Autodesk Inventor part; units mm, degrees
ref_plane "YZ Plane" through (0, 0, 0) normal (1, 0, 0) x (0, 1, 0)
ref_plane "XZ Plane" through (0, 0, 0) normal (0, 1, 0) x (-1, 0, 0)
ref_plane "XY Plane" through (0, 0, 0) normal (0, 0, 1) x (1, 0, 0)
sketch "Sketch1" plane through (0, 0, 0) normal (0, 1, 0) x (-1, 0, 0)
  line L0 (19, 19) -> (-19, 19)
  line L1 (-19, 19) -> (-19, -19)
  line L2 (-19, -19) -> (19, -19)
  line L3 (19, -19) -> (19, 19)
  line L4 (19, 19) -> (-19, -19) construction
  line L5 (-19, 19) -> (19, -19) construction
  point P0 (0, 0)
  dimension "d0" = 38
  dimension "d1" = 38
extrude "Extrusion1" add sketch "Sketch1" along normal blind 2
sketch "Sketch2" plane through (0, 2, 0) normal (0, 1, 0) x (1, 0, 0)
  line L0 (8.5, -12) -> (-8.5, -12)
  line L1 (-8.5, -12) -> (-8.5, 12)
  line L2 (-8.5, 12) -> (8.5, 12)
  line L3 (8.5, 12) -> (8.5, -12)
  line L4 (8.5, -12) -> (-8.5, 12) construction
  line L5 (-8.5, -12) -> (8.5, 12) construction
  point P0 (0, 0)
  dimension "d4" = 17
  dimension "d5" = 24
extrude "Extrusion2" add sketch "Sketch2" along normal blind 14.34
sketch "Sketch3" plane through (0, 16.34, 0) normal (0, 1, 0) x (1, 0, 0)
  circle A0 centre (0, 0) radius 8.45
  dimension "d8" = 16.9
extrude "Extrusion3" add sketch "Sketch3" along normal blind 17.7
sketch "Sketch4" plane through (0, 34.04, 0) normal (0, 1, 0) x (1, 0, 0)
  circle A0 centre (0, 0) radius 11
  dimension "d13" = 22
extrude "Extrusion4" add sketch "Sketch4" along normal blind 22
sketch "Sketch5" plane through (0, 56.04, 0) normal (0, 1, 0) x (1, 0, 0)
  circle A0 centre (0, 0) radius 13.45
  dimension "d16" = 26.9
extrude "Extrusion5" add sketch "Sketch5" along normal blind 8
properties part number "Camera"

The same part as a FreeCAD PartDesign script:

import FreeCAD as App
import Part
import Sketcher

V = App.Vector

doc = App.newDocument("Part")
body = doc.addObject("PartDesign::Body", "Body")

# Sketch on XZ plane
sketch1 = doc.addObject("Sketcher::SketchObject", "Sketch")
body.addObject(sketch1)
sketch1.AttachmentSupport = (doc.XZ_Plane, [""])
sketch1.MapMode = "FlatFace"
sketch1.addGeometry([
    Part.LineSegment(V(-19, -19, 0), V(-19, 19, 0)),
    Part.LineSegment(V(-19, 19, 0), V(19, 19, 0)),
    Part.LineSegment(V(19, 19, 0), V(19, -19, 0)),
    Part.LineSegment(V(19, -19, 0), V(-19, -19, 0)),
], False)
sketch1.addConstraint([
    Sketcher.Constraint("Coincident", 0, 2, 1, 1),
    Sketcher.Constraint("Coincident", 1, 2, 2, 1),
    Sketcher.Constraint("Coincident", 2, 2, 3, 1),
    Sketcher.Constraint("Coincident", 3, 2, 0, 1),
    Sketcher.Constraint("Vertical", 0),
    Sketcher.Constraint("Horizontal", 1),
    Sketcher.Constraint("Vertical", 2),
    Sketcher.Constraint("Horizontal", 3),
    Sketcher.Constraint("Symmetric", 0, 2, 2, 2, -1, 1),
    Sketcher.Constraint("Equal", 3, 0),
    Sketcher.Constraint("DistanceX", 1, 1, 1, 2, 38.0),
])
pad1 = doc.addObject("PartDesign::Pad", "Pad")
body.addObject(pad1)
pad1.Profile = sketch1
pad1.Length = 2
pad1.Reversed = True

# Sketch on XZ plane
sketch2 = doc.addObject("Sketcher::SketchObject", "Sketch001")
body.addObject(sketch2)
sketch2.AttachmentSupport = (doc.XZ_Plane, [""])
sketch2.MapMode = "FlatFace"
sketch2.AttachmentOffset = App.Placement(V(0, 0, -2), App.Rotation())
sketch2.addGeometry([
    Part.LineSegment(V(-8, 12, 0), V(8, 12, 0)),
    Part.LineSegment(V(8, 12, 0), V(8, -12, 0)),
    Part.LineSegment(V(8, -12, 0), V(-8, -12, 0)),
    Part.LineSegment(V(-8, -12, 0), V(-8, 12, 0)),
], False)
sketch2.addConstraint([
    Sketcher.Constraint("Coincident", 0, 2, 1, 1),
    Sketcher.Constraint("Coincident", 1, 2, 2, 1),
    Sketcher.Constraint("Coincident", 2, 2, 3, 1),
    Sketcher.Constraint("Coincident", 3, 2, 0, 1),
    Sketcher.Constraint("Horizontal", 0),
    Sketcher.Constraint("Vertical", 1),
    Sketcher.Constraint("Horizontal", 2),
    Sketcher.Constraint("Vertical", 3),
    Sketcher.Constraint("Symmetric", 0, 2, 2, 2, -1, 1),
    Sketcher.Constraint("DistanceX", 0, 1, 0, 2, 17.0),
    Sketcher.Constraint("DistanceY", 1, 2, 1, 1, 24.0),
])
pad2 = doc.addObject("PartDesign::Pad", "Pad001")
body.addObject(pad2)
pad2.Profile = sketch2
pad2.Length = 14.34
pad2.Reversed = True

# Sketch on XZ plane
sketch3 = doc.addObject("Sketcher::SketchObject", "Sketch002")
body.addObject(sketch3)
sketch3.AttachmentSupport = (doc.XZ_Plane, [""])
sketch3.MapMode = "FlatFace"
sketch3.AttachmentOffset = App.Placement(V(0, 0, -16.34), App.Rotation())
sketch3.addGeometry(Part.Circle(V(0, 0, 0), V(0, 0, 1), 8), False)
sketch3.addConstraint([
    Sketcher.Constraint("Coincident", 0, 3, -1, 1),
    Sketcher.Constraint("Diameter", 0, 16.9),
])
pad3 = doc.addObject("PartDesign::Pad", "Pad002")
body.addObject(pad3)
pad3.Profile = sketch3
pad3.Length = 17.7
pad3.Reversed = True

# Sketch on XZ plane
sketch4 = doc.addObject("Sketcher::SketchObject", "Sketch003")
body.addObject(sketch4)
sketch4.AttachmentSupport = (doc.XZ_Plane, [""])
sketch4.MapMode = "FlatFace"
sketch4.AttachmentOffset = App.Placement(V(0, 0, -34.04), App.Rotation())
sketch4.addGeometry(Part.Circle(V(0, 0, 0), V(0, 0, 1), 11), False)
sketch4.addConstraint([
    Sketcher.Constraint("Coincident", 0, 3, -1, 1),
    Sketcher.Constraint("Diameter", 0, 22.0),
])
pad4 = doc.addObject("PartDesign::Pad", "Pad003")
body.addObject(pad4)
pad4.Profile = sketch4
pad4.Length = 22
pad4.Reversed = True

# Sketch on XZ plane
sketch5 = doc.addObject("Sketcher::SketchObject", "Sketch004")
body.addObject(sketch5)
sketch5.AttachmentSupport = (doc.XZ_Plane, [""])
sketch5.MapMode = "FlatFace"
sketch5.AttachmentOffset = App.Placement(V(0, 0, -56.04), App.Rotation())
sketch5.addGeometry(Part.Circle(V(0, 0, 0), V(0, 0, 1), 13), False)
sketch5.addConstraint([
    Sketcher.Constraint("Coincident", 0, 3, -1, 1),
    Sketcher.Constraint("Diameter", 0, 26.9),
])
pad5 = doc.addObject("PartDesign::Pad", "Pad004")
body.addObject(pad5)
pad5.Profile = sketch5
pad5.Length = 8
pad5.Reversed = True

doc.recompute()
